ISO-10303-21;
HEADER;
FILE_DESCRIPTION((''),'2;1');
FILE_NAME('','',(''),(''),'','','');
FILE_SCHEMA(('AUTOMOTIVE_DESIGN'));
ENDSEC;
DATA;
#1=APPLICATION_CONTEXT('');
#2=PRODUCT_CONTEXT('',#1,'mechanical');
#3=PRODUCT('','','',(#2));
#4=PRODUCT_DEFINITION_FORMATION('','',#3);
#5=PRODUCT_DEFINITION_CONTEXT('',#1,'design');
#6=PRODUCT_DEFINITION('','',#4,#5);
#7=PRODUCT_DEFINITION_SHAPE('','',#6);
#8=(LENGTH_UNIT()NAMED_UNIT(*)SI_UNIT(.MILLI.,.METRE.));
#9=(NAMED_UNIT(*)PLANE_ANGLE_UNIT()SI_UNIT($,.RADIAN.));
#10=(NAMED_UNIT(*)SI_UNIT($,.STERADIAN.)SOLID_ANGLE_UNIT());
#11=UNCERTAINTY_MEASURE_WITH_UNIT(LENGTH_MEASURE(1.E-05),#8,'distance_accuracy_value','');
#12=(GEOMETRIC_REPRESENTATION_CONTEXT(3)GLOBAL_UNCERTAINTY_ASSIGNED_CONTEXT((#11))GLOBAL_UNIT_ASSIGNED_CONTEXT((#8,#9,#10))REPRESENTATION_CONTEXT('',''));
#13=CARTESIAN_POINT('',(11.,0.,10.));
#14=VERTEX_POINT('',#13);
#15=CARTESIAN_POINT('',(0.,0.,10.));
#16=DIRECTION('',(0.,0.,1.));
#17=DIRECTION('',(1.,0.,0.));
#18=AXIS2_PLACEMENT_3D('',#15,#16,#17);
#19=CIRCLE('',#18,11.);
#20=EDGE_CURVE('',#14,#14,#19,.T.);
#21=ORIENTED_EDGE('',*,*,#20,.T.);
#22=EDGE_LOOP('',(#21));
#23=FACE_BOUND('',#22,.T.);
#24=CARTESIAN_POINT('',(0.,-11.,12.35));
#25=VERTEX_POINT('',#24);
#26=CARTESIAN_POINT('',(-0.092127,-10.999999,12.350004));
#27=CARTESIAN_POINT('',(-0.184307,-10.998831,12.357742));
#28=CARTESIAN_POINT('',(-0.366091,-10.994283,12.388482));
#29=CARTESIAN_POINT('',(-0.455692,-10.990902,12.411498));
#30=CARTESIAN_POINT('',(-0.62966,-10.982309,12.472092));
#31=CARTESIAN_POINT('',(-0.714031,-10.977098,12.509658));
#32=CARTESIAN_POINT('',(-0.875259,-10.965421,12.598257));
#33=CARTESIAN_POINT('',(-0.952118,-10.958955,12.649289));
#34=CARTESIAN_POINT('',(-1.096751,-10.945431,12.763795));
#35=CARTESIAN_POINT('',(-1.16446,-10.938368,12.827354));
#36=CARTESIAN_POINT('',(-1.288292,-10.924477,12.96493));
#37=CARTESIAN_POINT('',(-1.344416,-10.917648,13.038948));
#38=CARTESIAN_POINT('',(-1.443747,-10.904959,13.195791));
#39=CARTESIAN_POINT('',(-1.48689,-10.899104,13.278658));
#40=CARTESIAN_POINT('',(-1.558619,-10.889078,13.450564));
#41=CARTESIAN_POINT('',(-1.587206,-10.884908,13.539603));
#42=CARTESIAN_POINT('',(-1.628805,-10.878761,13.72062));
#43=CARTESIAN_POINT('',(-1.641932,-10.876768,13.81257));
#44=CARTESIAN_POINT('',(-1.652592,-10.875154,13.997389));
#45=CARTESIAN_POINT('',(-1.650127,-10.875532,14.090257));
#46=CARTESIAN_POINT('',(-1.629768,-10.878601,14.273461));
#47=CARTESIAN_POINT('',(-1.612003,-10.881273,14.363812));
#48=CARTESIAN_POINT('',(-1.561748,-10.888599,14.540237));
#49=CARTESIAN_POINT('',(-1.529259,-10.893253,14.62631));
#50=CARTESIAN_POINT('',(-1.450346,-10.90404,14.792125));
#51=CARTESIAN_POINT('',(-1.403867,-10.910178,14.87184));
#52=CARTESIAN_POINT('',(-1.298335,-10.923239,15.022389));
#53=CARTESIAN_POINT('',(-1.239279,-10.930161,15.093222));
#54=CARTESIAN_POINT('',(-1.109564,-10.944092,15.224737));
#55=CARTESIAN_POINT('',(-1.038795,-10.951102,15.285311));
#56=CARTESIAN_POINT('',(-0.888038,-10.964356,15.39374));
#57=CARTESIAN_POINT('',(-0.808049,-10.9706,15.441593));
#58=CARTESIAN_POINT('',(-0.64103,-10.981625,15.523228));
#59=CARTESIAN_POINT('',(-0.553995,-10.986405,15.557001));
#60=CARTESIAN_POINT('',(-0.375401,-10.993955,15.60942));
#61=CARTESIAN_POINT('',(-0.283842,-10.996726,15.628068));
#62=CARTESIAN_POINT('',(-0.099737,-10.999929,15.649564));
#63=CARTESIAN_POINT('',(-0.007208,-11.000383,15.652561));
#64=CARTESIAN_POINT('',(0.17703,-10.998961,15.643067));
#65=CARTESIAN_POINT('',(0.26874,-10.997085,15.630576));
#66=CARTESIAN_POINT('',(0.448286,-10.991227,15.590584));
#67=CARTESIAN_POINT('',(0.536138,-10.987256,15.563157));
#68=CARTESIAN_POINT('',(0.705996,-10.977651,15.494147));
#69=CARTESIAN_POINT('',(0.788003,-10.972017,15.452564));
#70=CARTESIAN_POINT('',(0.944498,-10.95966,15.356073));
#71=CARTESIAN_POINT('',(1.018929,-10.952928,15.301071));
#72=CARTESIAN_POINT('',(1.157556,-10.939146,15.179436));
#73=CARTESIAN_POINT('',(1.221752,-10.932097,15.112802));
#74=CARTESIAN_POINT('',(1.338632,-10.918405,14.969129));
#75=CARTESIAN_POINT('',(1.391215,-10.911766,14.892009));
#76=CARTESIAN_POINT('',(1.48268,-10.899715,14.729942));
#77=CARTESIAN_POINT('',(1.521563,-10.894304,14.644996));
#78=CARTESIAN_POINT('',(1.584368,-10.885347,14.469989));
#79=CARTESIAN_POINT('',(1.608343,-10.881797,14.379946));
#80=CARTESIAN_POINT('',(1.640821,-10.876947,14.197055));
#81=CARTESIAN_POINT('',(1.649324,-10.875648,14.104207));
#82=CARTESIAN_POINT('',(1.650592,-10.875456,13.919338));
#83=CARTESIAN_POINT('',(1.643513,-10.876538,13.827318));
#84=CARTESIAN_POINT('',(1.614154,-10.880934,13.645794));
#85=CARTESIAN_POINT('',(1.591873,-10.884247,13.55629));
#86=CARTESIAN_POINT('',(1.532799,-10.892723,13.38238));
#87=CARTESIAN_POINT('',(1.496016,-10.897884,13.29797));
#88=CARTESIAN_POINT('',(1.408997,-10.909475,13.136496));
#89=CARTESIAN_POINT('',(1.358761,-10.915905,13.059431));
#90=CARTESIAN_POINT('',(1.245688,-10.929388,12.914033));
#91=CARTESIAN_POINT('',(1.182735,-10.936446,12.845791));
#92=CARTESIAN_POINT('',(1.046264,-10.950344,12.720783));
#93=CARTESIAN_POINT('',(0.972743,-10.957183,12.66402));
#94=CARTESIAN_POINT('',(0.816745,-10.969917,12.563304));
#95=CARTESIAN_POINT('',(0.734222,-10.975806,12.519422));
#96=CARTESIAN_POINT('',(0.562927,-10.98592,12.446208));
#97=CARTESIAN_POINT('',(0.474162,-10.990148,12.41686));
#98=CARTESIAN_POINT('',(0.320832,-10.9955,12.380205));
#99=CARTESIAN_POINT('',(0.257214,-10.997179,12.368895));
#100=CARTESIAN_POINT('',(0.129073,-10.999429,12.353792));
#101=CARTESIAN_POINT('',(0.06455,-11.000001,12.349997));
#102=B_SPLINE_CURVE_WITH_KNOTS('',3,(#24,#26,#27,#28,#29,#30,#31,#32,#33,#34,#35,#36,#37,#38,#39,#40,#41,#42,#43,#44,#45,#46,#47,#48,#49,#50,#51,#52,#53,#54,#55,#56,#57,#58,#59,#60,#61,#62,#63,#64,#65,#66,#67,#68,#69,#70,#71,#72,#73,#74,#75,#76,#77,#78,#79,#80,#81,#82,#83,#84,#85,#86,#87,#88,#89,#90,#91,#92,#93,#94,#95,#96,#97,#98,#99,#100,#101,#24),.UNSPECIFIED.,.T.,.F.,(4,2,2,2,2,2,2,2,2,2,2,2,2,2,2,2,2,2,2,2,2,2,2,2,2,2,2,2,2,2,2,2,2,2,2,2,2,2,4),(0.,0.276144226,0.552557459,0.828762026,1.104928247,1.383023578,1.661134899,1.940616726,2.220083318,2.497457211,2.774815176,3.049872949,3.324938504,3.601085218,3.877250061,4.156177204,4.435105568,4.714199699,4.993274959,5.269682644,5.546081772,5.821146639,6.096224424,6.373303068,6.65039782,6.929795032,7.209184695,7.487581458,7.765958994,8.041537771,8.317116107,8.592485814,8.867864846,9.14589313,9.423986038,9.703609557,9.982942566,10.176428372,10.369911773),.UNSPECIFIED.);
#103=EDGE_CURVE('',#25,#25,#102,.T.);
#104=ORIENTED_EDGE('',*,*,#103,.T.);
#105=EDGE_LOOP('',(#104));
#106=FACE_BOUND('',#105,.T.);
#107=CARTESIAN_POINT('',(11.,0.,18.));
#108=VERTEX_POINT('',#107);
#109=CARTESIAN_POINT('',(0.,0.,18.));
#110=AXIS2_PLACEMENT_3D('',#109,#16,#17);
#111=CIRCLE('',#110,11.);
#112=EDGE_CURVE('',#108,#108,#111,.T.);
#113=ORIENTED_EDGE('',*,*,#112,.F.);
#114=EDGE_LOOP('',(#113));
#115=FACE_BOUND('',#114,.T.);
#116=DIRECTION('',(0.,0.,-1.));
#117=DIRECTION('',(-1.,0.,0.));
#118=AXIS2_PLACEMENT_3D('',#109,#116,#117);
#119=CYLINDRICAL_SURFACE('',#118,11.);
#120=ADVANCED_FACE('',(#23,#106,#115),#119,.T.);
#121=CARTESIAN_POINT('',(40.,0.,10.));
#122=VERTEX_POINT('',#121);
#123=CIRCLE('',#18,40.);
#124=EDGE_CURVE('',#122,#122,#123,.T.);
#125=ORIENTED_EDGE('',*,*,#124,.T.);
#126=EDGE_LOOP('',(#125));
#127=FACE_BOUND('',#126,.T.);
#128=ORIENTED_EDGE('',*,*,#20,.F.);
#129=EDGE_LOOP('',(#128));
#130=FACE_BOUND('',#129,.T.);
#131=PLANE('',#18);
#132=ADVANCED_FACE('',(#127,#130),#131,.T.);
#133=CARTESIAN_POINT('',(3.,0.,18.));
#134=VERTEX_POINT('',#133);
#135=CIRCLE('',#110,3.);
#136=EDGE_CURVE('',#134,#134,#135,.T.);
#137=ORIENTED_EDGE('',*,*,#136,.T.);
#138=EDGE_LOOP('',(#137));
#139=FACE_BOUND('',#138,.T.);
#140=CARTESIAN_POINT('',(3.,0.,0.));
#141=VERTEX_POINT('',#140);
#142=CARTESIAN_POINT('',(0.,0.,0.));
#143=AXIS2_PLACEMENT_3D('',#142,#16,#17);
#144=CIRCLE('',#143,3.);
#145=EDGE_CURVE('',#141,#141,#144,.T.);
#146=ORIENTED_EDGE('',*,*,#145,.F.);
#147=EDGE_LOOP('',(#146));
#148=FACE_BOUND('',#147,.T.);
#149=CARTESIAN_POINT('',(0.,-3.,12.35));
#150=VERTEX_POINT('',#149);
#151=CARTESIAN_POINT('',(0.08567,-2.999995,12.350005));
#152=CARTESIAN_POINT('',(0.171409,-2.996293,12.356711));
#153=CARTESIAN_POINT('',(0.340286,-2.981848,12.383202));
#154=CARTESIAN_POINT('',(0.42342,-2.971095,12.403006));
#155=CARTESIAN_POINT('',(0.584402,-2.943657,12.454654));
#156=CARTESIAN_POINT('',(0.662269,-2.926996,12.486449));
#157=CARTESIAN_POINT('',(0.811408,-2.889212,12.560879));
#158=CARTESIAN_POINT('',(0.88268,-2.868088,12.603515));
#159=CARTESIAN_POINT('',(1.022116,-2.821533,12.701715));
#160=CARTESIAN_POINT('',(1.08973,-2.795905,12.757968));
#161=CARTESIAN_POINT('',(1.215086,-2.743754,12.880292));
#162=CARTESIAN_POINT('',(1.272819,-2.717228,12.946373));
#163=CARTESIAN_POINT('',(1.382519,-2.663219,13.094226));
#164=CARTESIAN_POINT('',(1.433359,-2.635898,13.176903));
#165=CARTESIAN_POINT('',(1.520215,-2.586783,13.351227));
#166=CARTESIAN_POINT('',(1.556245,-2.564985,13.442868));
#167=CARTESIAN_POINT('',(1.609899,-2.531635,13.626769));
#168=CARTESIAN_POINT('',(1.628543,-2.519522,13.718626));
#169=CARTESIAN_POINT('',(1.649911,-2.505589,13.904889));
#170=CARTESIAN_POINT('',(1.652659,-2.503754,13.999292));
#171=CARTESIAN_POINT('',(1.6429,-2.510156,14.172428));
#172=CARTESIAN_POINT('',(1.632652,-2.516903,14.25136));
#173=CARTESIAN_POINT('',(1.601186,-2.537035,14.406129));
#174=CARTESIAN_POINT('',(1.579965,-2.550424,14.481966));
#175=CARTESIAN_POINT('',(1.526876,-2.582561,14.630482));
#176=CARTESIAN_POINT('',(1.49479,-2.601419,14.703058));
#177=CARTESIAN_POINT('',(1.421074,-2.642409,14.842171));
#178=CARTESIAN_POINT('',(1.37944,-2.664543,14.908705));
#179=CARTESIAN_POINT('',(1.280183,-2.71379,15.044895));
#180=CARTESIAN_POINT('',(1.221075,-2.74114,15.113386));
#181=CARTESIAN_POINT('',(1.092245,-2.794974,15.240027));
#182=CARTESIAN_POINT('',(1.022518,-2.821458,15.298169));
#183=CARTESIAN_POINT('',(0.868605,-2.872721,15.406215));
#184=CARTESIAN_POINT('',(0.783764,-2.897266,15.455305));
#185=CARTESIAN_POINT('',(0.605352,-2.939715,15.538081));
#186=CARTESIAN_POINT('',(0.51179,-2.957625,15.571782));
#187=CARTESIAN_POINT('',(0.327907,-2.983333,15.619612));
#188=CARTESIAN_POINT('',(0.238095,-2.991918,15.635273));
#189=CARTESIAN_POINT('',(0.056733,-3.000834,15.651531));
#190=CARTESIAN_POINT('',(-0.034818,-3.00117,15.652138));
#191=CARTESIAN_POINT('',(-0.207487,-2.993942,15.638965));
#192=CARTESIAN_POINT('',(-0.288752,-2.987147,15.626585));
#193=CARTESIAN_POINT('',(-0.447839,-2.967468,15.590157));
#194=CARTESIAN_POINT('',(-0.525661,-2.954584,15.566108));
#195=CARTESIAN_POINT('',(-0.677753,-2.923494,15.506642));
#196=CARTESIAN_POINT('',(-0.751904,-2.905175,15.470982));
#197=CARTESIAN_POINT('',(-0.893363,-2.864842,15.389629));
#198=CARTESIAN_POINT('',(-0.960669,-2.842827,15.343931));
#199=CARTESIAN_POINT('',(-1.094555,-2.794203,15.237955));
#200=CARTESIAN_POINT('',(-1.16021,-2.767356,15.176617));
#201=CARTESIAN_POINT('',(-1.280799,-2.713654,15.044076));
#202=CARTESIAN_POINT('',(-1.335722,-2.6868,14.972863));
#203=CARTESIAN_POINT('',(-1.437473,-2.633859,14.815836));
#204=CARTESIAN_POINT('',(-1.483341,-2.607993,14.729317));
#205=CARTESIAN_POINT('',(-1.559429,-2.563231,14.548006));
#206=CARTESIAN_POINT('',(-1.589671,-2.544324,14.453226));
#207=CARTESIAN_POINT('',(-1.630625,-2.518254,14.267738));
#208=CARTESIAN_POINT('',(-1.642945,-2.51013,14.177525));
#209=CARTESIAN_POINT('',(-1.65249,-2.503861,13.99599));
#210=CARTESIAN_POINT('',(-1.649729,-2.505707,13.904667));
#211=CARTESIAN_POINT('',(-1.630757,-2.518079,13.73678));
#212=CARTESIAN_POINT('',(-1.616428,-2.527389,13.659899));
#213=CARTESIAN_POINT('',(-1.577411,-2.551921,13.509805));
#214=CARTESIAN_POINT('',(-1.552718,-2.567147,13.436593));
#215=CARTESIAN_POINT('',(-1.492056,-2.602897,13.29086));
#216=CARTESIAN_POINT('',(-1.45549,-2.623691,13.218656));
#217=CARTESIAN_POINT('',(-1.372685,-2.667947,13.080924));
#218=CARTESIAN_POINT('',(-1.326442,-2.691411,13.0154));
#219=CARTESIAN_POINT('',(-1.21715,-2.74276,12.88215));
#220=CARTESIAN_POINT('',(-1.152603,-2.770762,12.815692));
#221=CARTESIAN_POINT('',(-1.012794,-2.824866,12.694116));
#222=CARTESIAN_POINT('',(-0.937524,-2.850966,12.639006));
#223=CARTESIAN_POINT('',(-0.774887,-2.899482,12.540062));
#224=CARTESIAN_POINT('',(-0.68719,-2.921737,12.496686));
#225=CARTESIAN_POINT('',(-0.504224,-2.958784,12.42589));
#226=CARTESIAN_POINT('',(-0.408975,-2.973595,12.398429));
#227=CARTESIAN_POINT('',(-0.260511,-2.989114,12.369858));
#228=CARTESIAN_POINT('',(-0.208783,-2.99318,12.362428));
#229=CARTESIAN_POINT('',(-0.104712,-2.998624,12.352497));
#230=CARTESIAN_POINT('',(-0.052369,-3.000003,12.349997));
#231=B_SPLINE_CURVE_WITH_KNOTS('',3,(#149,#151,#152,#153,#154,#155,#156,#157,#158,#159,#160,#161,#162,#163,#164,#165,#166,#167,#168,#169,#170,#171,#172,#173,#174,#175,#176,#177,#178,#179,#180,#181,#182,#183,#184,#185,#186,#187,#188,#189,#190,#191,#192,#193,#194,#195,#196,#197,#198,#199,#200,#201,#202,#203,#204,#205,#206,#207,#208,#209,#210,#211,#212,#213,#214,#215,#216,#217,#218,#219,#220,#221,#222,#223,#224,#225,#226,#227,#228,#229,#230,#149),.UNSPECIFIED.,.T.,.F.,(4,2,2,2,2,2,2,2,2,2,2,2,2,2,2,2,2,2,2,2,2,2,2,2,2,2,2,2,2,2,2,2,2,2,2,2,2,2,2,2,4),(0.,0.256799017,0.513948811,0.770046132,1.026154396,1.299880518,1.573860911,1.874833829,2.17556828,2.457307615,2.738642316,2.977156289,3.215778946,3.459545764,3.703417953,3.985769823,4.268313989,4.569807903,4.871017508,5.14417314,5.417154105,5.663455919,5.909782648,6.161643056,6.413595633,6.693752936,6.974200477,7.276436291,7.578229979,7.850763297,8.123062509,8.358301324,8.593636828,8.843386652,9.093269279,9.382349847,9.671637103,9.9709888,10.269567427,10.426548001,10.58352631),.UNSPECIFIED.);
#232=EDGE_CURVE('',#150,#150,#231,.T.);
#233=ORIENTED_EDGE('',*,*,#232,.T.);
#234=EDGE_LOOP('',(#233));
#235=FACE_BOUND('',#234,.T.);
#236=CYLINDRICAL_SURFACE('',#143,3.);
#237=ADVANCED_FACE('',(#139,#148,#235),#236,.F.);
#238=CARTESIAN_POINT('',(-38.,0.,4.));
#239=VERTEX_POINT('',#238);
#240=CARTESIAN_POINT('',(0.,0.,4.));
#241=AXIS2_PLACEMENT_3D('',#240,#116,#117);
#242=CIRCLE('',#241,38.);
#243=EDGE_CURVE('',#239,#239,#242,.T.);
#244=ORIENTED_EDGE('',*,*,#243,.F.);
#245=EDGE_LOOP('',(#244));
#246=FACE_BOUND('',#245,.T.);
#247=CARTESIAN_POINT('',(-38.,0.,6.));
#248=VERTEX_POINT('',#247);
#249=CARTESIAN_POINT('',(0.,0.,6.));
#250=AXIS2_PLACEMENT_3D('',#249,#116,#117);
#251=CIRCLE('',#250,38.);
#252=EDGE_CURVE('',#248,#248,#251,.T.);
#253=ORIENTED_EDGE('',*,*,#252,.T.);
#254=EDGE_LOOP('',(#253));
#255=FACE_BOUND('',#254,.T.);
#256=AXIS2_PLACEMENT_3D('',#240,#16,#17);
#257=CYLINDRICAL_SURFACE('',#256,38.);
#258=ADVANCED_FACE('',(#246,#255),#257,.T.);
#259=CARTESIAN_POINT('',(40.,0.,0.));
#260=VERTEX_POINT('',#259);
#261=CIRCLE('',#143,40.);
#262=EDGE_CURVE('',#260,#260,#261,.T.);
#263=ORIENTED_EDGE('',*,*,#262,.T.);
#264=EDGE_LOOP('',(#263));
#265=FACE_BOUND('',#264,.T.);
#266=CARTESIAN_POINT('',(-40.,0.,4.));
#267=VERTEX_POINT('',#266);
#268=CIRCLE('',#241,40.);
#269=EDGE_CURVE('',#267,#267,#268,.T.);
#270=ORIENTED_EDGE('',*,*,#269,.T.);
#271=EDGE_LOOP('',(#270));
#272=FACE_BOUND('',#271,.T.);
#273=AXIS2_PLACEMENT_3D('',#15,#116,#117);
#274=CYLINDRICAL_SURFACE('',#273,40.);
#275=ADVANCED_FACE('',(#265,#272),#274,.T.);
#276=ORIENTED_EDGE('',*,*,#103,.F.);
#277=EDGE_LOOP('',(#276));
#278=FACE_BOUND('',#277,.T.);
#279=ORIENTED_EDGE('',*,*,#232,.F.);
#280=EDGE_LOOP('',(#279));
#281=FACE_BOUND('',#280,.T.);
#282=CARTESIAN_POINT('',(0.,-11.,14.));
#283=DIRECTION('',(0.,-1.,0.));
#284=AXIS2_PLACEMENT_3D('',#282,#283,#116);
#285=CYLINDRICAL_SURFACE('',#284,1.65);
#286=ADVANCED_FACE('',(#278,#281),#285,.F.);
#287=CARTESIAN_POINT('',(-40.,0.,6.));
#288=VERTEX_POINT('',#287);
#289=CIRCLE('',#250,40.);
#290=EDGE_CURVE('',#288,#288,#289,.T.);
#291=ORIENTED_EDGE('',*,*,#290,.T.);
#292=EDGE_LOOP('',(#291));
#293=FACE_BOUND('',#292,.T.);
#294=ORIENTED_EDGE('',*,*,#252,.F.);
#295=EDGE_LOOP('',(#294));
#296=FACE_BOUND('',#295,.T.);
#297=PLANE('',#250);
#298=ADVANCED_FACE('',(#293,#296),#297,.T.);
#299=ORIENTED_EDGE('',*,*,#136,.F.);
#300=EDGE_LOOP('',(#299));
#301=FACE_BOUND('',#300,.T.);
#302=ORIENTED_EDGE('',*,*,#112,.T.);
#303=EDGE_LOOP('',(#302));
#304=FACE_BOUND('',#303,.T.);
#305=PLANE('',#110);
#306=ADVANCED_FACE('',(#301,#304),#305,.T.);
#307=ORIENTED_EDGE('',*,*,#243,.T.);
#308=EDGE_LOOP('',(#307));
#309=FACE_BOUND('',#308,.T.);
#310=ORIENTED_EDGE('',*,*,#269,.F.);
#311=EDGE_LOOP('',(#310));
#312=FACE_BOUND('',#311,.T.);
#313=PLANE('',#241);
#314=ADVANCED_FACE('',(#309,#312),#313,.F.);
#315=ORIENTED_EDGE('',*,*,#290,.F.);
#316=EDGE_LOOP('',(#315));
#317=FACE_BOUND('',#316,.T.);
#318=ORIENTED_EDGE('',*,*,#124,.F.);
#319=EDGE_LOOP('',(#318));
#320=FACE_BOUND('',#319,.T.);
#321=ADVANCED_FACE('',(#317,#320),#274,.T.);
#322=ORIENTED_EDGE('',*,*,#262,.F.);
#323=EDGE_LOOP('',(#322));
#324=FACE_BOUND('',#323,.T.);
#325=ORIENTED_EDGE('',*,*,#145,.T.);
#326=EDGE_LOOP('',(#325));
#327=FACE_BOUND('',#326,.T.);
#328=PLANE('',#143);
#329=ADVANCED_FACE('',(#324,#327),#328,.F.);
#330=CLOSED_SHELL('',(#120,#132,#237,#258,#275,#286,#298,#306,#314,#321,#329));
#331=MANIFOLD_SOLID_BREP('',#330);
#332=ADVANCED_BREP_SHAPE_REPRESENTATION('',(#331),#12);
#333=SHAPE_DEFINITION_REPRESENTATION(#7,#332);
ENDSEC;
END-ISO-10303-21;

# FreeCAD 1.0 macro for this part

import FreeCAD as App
import Part
import Sketcher
from FreeCAD import Vector


def add_polygon(sketch, points):
    """Adds a closed chain of lines whose ends are joined by coincident constraints."""
    first, n = sketch.GeometryCount, len(points)
    for a, b in zip(points, points[1:] + points[:1]):
        sketch.addGeometry(Part.LineSegment(App.Vector(*a, 0), App.Vector(*b, 0)), False)
    for i in range(n):
        sketch.addConstraint(Sketcher.Constraint("Coincident", first + i, 2, first + (i + 1) % n, 1))

doc = App.newDocument("Part")
body = doc.addObject("PartDesign::Body", "Body")

# Sketch on XY plane
sketch1 = body.newObject("Sketcher::SketchObject", "Sketch")
sketch1.AttachmentSupport = (doc.getObject("XY_Plane"), [""])
sketch1.MapMode = "FlatFace"
sketch1.addGeometry(Part.Circle(Vector(0, 0, 0), Vector(0, 0, 1), 40), False)
sketch1.addConstraint(Sketcher.Constraint("Coincident", 0, 3, -1, 1))
sketch1.addConstraint(Sketcher.Constraint("Diameter", 0, 80.0))
pad1 = body.newObject("PartDesign::Pad", "Pad")
pad1.Profile = sketch1
pad1.Length = 10

# Sketch on XY plane
sketch2 = body.newObject("Sketcher::SketchObject", "Sketch001")
sketch2.AttachmentSupport = (doc.getObject("XY_Plane"), [""])
sketch2.MapMode = "FlatFace"
sketch2.AttachmentOffset = App.Placement(Vector(0, 0, 10), App.Rotation())
sketch2.addGeometry(Part.Circle(Vector(0, 0, 0), Vector(0, 0, 1), 11), False)
sketch2.addConstraint(Sketcher.Constraint("Coincident", 0, 3, -1, 1))
sketch2.addConstraint(Sketcher.Constraint("Diameter", 0, 22.0))
pad2 = body.newObject("PartDesign::Pad", "Pad001")
pad2.Profile = sketch2
pad2.Length = 8

# Sketch on XY plane
sketch3 = body.newObject("Sketcher::SketchObject", "Sketch002")
sketch3.AttachmentSupport = (doc.getObject("XY_Plane"), [""])
sketch3.MapMode = "FlatFace"
sketch3.AttachmentOffset = App.Placement(Vector(0, 0, 18), App.Rotation())
sketch3.addGeometry(Part.Circle(Vector(0, 0, 0), Vector(0, 0, 1), 3), False)
sketch3.addConstraint(Sketcher.Constraint("Coincident", 0, 3, -1, 1))
sketch3.addConstraint(Sketcher.Constraint("Diameter", 0, 6.0))
pocket1 = body.newObject("PartDesign::Pocket", "Pocket")
pocket1.Profile = sketch3
pocket1.Type = "ThroughAll"

# Sketch on XZ plane
sketch4 = body.newObject("Sketcher::SketchObject", "Sketch003")
sketch4.AttachmentSupport = (doc.getObject("XZ_Plane"), [""])
sketch4.MapMode = "FlatFace"
sketch4.AttachmentOffset = App.Placement(Vector(0, 0, 11), App.Rotation())
sketch4.addGeometry(Part.Circle(Vector(0, 14, 0), Vector(0, 0, 1), 1.6), False)
sketch4.addConstraint(Sketcher.Constraint("PointOnObject", 0, 3, -2))
sketch4.addConstraint(Sketcher.Constraint("Diameter", 0, 3.3))
sketch4.addConstraint(Sketcher.Constraint("DistanceY", -1, 1, 0, 3, 14.0))
pocket2 = body.newObject("PartDesign::Pocket", "Pocket001")
pocket2.Profile = sketch4
pocket2.Type = "UpToFirst"

# Sketch on XY plane
sketch5 = body.newObject("Sketcher::SketchObject", "Sketch004")
sketch5.AttachmentSupport = (doc.getObject("XY_Plane"), [""])
sketch5.MapMode = "FlatFace"
sketch5.AttachmentOffset = App.Placement(Vector(0, 0, 5), App.Rotation())
add_polygon(sketch5, [(52, 52), (52, -52), (-52, -52), (-52, 52)])  # lines 0-3
sketch5.addGeometry(Part.Circle(Vector(0, 0, 0), Vector(0, 0, 1), 38), False)  # 4
sketch5.addConstraint(Sketcher.Constraint("Vertical", 0))
sketch5.addConstraint(Sketcher.Constraint("Horizontal", 1))
sketch5.addConstraint(Sketcher.Constraint("Vertical", 2))
sketch5.addConstraint(Sketcher.Constraint("Horizontal", 3))
sketch5.addConstraint(Sketcher.Constraint("Coincident", 4, 3, -1, 1))
sketch5.addConstraint(Sketcher.Constraint("Symmetric", 0, 2, 2, 2, -1, 1))
sketch5.addConstraint(Sketcher.Constraint("Equal", 3, 0))
sketch5.addConstraint(Sketcher.Constraint("Diameter", 4, 76.0))
sketch5.addConstraint(Sketcher.Constraint("DistanceX", 1, 2, 1, 1, 104.912))
pocket3 = body.newObject("PartDesign::Pocket", "Pocket002")
pocket3.Profile = sketch5
pocket3.Type = "TwoLengths"
pocket3.Length = 1
pocket3.Length2 = 1

doc.recompute()
